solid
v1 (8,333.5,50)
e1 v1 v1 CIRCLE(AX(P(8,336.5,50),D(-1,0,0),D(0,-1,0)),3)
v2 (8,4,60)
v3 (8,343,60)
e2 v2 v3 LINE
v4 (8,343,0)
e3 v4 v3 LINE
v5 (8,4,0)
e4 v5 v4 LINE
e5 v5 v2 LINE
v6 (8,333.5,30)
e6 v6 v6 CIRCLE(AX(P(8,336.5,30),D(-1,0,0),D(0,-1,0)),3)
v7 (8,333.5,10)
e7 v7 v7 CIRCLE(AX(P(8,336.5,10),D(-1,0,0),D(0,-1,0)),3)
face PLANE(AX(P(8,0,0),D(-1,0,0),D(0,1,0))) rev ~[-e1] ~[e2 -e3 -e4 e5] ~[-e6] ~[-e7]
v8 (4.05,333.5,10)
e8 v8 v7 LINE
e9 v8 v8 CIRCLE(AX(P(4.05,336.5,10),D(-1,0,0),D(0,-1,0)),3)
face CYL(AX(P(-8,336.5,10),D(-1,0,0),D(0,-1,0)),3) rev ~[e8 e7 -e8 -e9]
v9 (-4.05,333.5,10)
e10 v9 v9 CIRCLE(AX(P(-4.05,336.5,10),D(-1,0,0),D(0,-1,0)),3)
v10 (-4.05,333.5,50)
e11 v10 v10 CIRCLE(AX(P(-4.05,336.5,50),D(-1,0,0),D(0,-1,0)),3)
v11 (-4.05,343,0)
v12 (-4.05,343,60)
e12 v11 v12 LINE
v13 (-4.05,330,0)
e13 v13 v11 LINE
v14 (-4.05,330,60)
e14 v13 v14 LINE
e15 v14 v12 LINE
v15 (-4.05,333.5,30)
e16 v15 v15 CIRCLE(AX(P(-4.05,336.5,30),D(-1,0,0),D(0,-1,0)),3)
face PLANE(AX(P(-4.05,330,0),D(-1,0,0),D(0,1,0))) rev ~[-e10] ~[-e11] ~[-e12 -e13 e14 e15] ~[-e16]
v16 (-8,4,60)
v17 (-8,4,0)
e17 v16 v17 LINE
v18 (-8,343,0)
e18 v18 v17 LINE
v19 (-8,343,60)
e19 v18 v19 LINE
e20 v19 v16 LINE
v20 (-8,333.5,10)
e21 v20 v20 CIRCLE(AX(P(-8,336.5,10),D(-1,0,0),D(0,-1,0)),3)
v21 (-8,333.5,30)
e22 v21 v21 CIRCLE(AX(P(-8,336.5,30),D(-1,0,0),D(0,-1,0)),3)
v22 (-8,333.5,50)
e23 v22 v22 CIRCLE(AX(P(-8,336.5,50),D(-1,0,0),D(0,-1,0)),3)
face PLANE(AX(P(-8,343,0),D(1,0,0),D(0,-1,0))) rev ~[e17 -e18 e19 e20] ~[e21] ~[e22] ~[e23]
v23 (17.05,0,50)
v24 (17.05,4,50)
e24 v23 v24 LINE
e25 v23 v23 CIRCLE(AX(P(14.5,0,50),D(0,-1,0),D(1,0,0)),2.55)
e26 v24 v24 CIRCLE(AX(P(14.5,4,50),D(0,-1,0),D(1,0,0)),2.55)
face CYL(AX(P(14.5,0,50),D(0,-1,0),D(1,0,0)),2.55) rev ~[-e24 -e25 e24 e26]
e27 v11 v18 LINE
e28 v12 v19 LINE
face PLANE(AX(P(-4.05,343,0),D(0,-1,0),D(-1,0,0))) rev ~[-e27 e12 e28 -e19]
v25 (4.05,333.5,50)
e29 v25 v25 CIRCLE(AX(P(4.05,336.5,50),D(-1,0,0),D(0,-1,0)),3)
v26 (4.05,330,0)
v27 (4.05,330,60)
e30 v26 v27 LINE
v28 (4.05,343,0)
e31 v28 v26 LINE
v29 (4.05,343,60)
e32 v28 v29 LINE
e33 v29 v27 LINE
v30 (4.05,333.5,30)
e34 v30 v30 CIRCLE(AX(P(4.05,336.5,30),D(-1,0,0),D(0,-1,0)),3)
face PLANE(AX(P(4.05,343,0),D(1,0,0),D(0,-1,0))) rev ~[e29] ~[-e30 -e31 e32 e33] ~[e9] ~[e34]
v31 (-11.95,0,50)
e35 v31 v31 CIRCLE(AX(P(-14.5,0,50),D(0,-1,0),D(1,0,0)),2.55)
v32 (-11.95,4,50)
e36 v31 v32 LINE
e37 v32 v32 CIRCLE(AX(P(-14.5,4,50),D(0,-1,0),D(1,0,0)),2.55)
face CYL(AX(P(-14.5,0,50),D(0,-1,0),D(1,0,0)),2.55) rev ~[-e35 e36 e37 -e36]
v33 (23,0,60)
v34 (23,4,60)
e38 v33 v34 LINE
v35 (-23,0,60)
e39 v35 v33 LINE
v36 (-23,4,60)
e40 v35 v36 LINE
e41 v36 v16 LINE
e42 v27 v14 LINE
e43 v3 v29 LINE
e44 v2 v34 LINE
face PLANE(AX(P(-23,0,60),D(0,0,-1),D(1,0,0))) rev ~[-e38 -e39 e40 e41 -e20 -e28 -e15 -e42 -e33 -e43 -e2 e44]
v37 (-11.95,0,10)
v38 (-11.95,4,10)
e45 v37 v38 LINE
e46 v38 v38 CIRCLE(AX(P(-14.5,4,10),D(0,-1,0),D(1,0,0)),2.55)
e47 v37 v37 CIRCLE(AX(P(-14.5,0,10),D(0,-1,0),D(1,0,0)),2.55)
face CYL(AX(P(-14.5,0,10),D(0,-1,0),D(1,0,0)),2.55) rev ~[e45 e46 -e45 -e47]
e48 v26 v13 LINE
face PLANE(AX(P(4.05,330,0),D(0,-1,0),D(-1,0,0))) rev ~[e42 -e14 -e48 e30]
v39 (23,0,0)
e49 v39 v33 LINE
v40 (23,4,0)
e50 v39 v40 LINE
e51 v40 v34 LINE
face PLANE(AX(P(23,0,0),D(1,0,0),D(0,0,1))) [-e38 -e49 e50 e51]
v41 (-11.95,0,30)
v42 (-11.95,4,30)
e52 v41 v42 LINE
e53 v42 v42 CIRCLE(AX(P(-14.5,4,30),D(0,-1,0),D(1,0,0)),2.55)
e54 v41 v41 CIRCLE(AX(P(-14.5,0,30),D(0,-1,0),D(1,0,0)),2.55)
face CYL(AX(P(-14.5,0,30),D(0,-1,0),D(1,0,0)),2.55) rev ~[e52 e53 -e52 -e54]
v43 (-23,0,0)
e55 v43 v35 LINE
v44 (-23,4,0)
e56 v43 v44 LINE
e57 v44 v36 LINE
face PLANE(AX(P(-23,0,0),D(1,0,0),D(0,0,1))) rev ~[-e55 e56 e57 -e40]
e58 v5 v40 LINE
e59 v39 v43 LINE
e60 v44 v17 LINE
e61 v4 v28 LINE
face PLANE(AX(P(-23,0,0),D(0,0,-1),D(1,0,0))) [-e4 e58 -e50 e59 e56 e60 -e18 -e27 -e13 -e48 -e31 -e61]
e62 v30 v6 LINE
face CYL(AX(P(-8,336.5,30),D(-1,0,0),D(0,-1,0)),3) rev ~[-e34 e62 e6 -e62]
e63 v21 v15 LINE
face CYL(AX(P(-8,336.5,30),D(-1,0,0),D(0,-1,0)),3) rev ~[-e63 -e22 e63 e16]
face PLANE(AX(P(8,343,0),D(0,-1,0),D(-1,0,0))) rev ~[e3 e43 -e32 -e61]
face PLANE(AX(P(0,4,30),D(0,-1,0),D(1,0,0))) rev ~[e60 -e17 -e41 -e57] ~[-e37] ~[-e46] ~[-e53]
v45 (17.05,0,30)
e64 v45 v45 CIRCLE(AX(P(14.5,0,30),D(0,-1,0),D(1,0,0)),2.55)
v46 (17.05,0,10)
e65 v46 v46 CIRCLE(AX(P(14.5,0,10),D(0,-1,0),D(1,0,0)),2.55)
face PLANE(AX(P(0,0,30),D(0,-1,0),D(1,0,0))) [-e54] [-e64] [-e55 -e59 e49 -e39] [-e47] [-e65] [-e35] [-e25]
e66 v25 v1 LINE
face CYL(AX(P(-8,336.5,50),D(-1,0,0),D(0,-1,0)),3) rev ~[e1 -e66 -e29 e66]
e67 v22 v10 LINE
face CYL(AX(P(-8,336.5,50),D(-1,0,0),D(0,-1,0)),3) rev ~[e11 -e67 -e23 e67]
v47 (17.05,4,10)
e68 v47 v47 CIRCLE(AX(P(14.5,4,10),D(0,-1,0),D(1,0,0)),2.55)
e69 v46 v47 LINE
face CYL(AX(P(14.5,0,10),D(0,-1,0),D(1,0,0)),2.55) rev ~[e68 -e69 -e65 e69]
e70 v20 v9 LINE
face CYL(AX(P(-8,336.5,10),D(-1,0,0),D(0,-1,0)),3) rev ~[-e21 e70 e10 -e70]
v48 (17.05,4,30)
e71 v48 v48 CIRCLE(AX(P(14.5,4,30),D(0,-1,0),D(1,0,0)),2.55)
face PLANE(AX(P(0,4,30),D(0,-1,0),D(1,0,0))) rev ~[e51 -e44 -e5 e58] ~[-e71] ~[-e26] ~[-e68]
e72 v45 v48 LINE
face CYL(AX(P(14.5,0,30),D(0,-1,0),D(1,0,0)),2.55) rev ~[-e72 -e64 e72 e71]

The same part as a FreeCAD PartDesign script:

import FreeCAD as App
import Part
import Sketcher


def add_polygon(sketch, points):
    """Adds a closed chain of lines whose ends are joined by coincident constraints."""
    first, n = sketch.GeometryCount, len(points)
    for a, b in zip(points, points[1:] + points[:1]):
        sketch.addGeometry(Part.LineSegment(App.Vector(*a, 0), App.Vector(*b, 0)), False)
    for i in range(n):
        sketch.addConstraint(Sketcher.Constraint("Coincident", first + i, 2, first + (i + 1) % n, 1))

doc = App.newDocument("Part")
body = doc.addObject("PartDesign::Body", "Body")

sketch1 = doc.addObject("Sketcher::SketchObject", "Sketch")
body.addObject(sketch1)
sketch1.AttachmentSupport = (doc.XY_Plane, [""])
sketch1.MapMode = "FlatFace"
add_polygon(sketch1, [(-8, 0), (8, 0), (8, 343), (4.05, 343), (4.05, 330), (-4.05, 330), (-4.05, 343), (-8, 343)])
sketch1.addConstraint([
    Sketcher.Constraint("Horizontal", 0),
    Sketcher.Constraint("Vertical", 1),
    Sketcher.Constraint("Horizontal", 2),
    Sketcher.Constraint("Vertical", 3),
    Sketcher.Constraint("Horizontal", 4),
    Sketcher.Constraint("Vertical", 5),
    Sketcher.Constraint("Horizontal", 6),
    Sketcher.Constraint("Vertical", 7),
    Sketcher.Constraint("Symmetric", 0, 2, 7, 2, -1, 1),
    Sketcher.Constraint("Symmetric", 2, 2, 5, 2, -2),
    Sketcher.Constraint("DistanceX", 0, 1, 0, 2, 16.0),
    Sketcher.Constraint("DistanceY", 1, 1, 1, 2, 343.0),
    Sketcher.Constraint("DistanceY", 3, 2, 3, 1, 13.0),
    Sketcher.Constraint("DistanceX", 4, 2, 4, 1, 8.1),
])
pad1 = doc.addObject("PartDesign::Pad", "Pad")
body.addObject(pad1)
pad1.Profile = sketch1
pad1.Length = 60

sketch2 = doc.addObject("Sketcher::SketchObject", "Sketch001")
body.addObject(sketch2)
sketch2.AttachmentSupport = (doc.XZ_Plane, [""])
sketch2.MapMode = "FlatFace"
add_polygon(sketch2, [(-23, 60), (-23, 0), (23, 0), (23, 60)])
sketch2.addGeometry(Part.Circle(App.Vector(-14.5, 10, 0), App.Vector(0, 0, 1), 2.55), False)
sketch2.addGeometry(Part.Circle(App.Vector(14.5, 10, 0), App.Vector(0, 0, 1), 2.55), False)
sketch2.addGeometry(Part.Circle(App.Vector(-14.5, 30, 0), App.Vector(0, 0, 1), 2.55), False)
sketch2.addGeometry(Part.Circle(App.Vector(-14.5, 50, 0), App.Vector(0, 0, 1), 2.55), False)
sketch2.addGeometry(Part.Circle(App.Vector(14.5, 30, 0), App.Vector(0, 0, 1), 2.55), False)
sketch2.addGeometry(Part.Circle(App.Vector(14.5, 50, 0), App.Vector(0, 0, 1), 2.55), False)
sketch2.addConstraint([
    Sketcher.Constraint("Vertical", 0),
    Sketcher.Constraint("Horizontal", 1),
    Sketcher.Constraint("Vertical", 2),
    Sketcher.Constraint("Horizontal", 3),
    Sketcher.Constraint("Equal", 4, 5),
    Sketcher.Constraint("Equal", 5, 6),
    Sketcher.Constraint("Equal", 6, 7),
    Sketcher.Constraint("Equal", 7, 8),
    Sketcher.Constraint("Equal", 8, 9),
    Sketcher.Constraint("Symmetric", 0, 2, 1, 2, -1, 1),
    Sketcher.Constraint("Symmetric", 4, 3, 5, 3, -2),
    Sketcher.Constraint("Symmetric", 6, 3, 8, 3, -2),
    Sketcher.Constraint("Symmetric", 7, 3, 9, 3, -2),
    Sketcher.Constraint("Vertical", 4, 3, 6, 3),
    Sketcher.Constraint("Vertical", 6, 3, 7, 3),
    Sketcher.Constraint("Diameter", 4, 5.1),
    Sketcher.Constraint("DistanceX", 1, 1, 1, 2, 46.0),
    Sketcher.Constraint("DistanceY", 0, 2, 0, 1, 60.0),
    Sketcher.Constraint("DistanceY", -1, 1, 4, 3, 10.0),
    Sketcher.Constraint("DistanceY", -1, 1, 6, 3, 30.0),
    Sketcher.Constraint("DistanceY", -1, 1, 7, 3, 50.0),
    Sketcher.Constraint("DistanceX", 4, 3, 5, 3, 29.0),
])
pad2 = doc.addObject("PartDesign::Pad", "Pad001")
body.addObject(pad2)
pad2.Profile = sketch2
pad2.Length = 4
pad2.Reversed = True

sketch3 = doc.addObject("Sketcher::SketchObject", "Sketch002")
body.addObject(sketch3)
sketch3.AttachmentSupport = (doc.YZ_Plane, [""])
sketch3.MapMode = "FlatFace"
sketch3.AttachmentOffset = App.Placement(App.Vector(0, 0, -8), App.Rotation())
sketch3.addGeometry([
    Part.Circle(App.Vector(336.5, 50, 0), App.Vector(0, 0, 1), 3),
    Part.Circle(App.Vector(336.5, 10, 0), App.Vector(0, 0, 1), 3),
    Part.Circle(App.Vector(336.5, 30, 0), App.Vector(0, 0, 1), 3),
], False)
sketch3.addConstraint([
    Sketcher.Constraint("Equal", 0, 1),
    Sketcher.Constraint("Equal", 1, 2),
    Sketcher.Constraint("Vertical", 0, 3, 1, 3),
    Sketcher.Constraint("Vertical", 1, 3, 2, 3),
    Sketcher.Constraint("Diameter", 0, 6.0),
    Sketcher.Constraint("DistanceY", -1, 1, 0, 3, 50.0),
    Sketcher.Constraint("DistanceY", -1, 1, 1, 3, 10.0),
    Sketcher.Constraint("DistanceY", -1, 1, 2, 3, 30.0),
    Sketcher.Constraint("DistanceX", -1, 1, 0, 3, 336.5),
])
pocket1 = doc.addObject("PartDesign::Pocket", "Pocket")
body.addObject(pocket1)
pocket1.Profile = sketch3
pocket1.Type = "ThroughAll"
pocket1.Reversed = True

doc.recompute()
